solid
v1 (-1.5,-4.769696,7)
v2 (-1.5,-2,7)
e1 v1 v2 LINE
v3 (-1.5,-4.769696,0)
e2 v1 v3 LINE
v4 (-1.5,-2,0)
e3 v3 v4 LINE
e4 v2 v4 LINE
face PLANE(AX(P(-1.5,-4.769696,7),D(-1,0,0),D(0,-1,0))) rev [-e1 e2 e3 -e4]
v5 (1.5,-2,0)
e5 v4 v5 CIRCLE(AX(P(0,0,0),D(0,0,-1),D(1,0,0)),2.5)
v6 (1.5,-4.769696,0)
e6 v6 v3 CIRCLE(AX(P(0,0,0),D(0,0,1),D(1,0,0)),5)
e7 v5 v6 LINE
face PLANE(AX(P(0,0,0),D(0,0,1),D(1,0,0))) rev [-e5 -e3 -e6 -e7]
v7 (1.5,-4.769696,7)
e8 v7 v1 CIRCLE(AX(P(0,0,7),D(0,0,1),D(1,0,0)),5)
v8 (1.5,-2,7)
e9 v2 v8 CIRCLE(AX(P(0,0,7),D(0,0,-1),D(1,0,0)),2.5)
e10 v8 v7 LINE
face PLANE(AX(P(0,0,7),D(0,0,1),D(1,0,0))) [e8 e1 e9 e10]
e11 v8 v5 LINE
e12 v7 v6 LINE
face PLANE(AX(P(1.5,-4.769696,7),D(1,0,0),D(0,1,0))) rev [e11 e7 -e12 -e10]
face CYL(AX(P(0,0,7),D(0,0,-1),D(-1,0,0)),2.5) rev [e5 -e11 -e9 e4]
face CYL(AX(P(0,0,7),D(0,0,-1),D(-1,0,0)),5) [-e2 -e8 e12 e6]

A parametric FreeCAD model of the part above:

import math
import FreeCAD as App
import Part
import Sketcher
from FreeCAD import Vector

doc = App.newDocument("Part")
body = doc.addObject("PartDesign::Body", "Body")

sketch1 = body.newObject("Sketcher::SketchObject", "Sketch")
sketch1.AttachmentSupport = (doc.getObject("XY_Plane"), [""])
sketch1.MapMode = "FlatFace"
sketch1.addGeometry([
    Part.LineSegment(Vector(-1.5, -4.8, 0), Vector(-1.5, -2, 0)),
    Part.ArcOfCircle(Part.Circle(Vector(0, 0, 0), Vector(0, 0, 1), 2.5), math.radians(-53), math.radians(233)),
    Part.LineSegment(Vector(1.5, -2, 0), Vector(1.5, -4.8, 0)),
    Part.ArcOfCircle(Part.Circle(Vector(0, 0, 0), Vector(0, 0, 1), 5), math.radians(-73), math.radians(253)),
], False)
sketch1.addConstraint([
    Sketcher.Constraint("Coincident", 0, 2, 1, 2),
    Sketcher.Constraint("Coincident", 1, 1, 2, 1),
    Sketcher.Constraint("Coincident", 2, 2, 3, 1),
    Sketcher.Constraint("Coincident", 3, 2, 0, 1),
    Sketcher.Constraint("Vertical", 0),
    Sketcher.Constraint("Vertical", 2),
    Sketcher.Constraint("Coincident", 1, 3, -1, 1),
    Sketcher.Constraint("Coincident", 3, 3, -1, 1),
    Sketcher.Constraint("Horizontal", 0, 2, 1, 1),
    Sketcher.Constraint("Radius", 3, 5.0),
    Sketcher.Constraint("Radius", 1, 2.5),
    Sketcher.Constraint("DistanceY", 0, 2, -1, 1, 2.0),
])
pad1 = body.newObject("PartDesign::Pad", "Pad")
pad1.Profile = sketch1
pad1.Length = 7

doc.recompute()
